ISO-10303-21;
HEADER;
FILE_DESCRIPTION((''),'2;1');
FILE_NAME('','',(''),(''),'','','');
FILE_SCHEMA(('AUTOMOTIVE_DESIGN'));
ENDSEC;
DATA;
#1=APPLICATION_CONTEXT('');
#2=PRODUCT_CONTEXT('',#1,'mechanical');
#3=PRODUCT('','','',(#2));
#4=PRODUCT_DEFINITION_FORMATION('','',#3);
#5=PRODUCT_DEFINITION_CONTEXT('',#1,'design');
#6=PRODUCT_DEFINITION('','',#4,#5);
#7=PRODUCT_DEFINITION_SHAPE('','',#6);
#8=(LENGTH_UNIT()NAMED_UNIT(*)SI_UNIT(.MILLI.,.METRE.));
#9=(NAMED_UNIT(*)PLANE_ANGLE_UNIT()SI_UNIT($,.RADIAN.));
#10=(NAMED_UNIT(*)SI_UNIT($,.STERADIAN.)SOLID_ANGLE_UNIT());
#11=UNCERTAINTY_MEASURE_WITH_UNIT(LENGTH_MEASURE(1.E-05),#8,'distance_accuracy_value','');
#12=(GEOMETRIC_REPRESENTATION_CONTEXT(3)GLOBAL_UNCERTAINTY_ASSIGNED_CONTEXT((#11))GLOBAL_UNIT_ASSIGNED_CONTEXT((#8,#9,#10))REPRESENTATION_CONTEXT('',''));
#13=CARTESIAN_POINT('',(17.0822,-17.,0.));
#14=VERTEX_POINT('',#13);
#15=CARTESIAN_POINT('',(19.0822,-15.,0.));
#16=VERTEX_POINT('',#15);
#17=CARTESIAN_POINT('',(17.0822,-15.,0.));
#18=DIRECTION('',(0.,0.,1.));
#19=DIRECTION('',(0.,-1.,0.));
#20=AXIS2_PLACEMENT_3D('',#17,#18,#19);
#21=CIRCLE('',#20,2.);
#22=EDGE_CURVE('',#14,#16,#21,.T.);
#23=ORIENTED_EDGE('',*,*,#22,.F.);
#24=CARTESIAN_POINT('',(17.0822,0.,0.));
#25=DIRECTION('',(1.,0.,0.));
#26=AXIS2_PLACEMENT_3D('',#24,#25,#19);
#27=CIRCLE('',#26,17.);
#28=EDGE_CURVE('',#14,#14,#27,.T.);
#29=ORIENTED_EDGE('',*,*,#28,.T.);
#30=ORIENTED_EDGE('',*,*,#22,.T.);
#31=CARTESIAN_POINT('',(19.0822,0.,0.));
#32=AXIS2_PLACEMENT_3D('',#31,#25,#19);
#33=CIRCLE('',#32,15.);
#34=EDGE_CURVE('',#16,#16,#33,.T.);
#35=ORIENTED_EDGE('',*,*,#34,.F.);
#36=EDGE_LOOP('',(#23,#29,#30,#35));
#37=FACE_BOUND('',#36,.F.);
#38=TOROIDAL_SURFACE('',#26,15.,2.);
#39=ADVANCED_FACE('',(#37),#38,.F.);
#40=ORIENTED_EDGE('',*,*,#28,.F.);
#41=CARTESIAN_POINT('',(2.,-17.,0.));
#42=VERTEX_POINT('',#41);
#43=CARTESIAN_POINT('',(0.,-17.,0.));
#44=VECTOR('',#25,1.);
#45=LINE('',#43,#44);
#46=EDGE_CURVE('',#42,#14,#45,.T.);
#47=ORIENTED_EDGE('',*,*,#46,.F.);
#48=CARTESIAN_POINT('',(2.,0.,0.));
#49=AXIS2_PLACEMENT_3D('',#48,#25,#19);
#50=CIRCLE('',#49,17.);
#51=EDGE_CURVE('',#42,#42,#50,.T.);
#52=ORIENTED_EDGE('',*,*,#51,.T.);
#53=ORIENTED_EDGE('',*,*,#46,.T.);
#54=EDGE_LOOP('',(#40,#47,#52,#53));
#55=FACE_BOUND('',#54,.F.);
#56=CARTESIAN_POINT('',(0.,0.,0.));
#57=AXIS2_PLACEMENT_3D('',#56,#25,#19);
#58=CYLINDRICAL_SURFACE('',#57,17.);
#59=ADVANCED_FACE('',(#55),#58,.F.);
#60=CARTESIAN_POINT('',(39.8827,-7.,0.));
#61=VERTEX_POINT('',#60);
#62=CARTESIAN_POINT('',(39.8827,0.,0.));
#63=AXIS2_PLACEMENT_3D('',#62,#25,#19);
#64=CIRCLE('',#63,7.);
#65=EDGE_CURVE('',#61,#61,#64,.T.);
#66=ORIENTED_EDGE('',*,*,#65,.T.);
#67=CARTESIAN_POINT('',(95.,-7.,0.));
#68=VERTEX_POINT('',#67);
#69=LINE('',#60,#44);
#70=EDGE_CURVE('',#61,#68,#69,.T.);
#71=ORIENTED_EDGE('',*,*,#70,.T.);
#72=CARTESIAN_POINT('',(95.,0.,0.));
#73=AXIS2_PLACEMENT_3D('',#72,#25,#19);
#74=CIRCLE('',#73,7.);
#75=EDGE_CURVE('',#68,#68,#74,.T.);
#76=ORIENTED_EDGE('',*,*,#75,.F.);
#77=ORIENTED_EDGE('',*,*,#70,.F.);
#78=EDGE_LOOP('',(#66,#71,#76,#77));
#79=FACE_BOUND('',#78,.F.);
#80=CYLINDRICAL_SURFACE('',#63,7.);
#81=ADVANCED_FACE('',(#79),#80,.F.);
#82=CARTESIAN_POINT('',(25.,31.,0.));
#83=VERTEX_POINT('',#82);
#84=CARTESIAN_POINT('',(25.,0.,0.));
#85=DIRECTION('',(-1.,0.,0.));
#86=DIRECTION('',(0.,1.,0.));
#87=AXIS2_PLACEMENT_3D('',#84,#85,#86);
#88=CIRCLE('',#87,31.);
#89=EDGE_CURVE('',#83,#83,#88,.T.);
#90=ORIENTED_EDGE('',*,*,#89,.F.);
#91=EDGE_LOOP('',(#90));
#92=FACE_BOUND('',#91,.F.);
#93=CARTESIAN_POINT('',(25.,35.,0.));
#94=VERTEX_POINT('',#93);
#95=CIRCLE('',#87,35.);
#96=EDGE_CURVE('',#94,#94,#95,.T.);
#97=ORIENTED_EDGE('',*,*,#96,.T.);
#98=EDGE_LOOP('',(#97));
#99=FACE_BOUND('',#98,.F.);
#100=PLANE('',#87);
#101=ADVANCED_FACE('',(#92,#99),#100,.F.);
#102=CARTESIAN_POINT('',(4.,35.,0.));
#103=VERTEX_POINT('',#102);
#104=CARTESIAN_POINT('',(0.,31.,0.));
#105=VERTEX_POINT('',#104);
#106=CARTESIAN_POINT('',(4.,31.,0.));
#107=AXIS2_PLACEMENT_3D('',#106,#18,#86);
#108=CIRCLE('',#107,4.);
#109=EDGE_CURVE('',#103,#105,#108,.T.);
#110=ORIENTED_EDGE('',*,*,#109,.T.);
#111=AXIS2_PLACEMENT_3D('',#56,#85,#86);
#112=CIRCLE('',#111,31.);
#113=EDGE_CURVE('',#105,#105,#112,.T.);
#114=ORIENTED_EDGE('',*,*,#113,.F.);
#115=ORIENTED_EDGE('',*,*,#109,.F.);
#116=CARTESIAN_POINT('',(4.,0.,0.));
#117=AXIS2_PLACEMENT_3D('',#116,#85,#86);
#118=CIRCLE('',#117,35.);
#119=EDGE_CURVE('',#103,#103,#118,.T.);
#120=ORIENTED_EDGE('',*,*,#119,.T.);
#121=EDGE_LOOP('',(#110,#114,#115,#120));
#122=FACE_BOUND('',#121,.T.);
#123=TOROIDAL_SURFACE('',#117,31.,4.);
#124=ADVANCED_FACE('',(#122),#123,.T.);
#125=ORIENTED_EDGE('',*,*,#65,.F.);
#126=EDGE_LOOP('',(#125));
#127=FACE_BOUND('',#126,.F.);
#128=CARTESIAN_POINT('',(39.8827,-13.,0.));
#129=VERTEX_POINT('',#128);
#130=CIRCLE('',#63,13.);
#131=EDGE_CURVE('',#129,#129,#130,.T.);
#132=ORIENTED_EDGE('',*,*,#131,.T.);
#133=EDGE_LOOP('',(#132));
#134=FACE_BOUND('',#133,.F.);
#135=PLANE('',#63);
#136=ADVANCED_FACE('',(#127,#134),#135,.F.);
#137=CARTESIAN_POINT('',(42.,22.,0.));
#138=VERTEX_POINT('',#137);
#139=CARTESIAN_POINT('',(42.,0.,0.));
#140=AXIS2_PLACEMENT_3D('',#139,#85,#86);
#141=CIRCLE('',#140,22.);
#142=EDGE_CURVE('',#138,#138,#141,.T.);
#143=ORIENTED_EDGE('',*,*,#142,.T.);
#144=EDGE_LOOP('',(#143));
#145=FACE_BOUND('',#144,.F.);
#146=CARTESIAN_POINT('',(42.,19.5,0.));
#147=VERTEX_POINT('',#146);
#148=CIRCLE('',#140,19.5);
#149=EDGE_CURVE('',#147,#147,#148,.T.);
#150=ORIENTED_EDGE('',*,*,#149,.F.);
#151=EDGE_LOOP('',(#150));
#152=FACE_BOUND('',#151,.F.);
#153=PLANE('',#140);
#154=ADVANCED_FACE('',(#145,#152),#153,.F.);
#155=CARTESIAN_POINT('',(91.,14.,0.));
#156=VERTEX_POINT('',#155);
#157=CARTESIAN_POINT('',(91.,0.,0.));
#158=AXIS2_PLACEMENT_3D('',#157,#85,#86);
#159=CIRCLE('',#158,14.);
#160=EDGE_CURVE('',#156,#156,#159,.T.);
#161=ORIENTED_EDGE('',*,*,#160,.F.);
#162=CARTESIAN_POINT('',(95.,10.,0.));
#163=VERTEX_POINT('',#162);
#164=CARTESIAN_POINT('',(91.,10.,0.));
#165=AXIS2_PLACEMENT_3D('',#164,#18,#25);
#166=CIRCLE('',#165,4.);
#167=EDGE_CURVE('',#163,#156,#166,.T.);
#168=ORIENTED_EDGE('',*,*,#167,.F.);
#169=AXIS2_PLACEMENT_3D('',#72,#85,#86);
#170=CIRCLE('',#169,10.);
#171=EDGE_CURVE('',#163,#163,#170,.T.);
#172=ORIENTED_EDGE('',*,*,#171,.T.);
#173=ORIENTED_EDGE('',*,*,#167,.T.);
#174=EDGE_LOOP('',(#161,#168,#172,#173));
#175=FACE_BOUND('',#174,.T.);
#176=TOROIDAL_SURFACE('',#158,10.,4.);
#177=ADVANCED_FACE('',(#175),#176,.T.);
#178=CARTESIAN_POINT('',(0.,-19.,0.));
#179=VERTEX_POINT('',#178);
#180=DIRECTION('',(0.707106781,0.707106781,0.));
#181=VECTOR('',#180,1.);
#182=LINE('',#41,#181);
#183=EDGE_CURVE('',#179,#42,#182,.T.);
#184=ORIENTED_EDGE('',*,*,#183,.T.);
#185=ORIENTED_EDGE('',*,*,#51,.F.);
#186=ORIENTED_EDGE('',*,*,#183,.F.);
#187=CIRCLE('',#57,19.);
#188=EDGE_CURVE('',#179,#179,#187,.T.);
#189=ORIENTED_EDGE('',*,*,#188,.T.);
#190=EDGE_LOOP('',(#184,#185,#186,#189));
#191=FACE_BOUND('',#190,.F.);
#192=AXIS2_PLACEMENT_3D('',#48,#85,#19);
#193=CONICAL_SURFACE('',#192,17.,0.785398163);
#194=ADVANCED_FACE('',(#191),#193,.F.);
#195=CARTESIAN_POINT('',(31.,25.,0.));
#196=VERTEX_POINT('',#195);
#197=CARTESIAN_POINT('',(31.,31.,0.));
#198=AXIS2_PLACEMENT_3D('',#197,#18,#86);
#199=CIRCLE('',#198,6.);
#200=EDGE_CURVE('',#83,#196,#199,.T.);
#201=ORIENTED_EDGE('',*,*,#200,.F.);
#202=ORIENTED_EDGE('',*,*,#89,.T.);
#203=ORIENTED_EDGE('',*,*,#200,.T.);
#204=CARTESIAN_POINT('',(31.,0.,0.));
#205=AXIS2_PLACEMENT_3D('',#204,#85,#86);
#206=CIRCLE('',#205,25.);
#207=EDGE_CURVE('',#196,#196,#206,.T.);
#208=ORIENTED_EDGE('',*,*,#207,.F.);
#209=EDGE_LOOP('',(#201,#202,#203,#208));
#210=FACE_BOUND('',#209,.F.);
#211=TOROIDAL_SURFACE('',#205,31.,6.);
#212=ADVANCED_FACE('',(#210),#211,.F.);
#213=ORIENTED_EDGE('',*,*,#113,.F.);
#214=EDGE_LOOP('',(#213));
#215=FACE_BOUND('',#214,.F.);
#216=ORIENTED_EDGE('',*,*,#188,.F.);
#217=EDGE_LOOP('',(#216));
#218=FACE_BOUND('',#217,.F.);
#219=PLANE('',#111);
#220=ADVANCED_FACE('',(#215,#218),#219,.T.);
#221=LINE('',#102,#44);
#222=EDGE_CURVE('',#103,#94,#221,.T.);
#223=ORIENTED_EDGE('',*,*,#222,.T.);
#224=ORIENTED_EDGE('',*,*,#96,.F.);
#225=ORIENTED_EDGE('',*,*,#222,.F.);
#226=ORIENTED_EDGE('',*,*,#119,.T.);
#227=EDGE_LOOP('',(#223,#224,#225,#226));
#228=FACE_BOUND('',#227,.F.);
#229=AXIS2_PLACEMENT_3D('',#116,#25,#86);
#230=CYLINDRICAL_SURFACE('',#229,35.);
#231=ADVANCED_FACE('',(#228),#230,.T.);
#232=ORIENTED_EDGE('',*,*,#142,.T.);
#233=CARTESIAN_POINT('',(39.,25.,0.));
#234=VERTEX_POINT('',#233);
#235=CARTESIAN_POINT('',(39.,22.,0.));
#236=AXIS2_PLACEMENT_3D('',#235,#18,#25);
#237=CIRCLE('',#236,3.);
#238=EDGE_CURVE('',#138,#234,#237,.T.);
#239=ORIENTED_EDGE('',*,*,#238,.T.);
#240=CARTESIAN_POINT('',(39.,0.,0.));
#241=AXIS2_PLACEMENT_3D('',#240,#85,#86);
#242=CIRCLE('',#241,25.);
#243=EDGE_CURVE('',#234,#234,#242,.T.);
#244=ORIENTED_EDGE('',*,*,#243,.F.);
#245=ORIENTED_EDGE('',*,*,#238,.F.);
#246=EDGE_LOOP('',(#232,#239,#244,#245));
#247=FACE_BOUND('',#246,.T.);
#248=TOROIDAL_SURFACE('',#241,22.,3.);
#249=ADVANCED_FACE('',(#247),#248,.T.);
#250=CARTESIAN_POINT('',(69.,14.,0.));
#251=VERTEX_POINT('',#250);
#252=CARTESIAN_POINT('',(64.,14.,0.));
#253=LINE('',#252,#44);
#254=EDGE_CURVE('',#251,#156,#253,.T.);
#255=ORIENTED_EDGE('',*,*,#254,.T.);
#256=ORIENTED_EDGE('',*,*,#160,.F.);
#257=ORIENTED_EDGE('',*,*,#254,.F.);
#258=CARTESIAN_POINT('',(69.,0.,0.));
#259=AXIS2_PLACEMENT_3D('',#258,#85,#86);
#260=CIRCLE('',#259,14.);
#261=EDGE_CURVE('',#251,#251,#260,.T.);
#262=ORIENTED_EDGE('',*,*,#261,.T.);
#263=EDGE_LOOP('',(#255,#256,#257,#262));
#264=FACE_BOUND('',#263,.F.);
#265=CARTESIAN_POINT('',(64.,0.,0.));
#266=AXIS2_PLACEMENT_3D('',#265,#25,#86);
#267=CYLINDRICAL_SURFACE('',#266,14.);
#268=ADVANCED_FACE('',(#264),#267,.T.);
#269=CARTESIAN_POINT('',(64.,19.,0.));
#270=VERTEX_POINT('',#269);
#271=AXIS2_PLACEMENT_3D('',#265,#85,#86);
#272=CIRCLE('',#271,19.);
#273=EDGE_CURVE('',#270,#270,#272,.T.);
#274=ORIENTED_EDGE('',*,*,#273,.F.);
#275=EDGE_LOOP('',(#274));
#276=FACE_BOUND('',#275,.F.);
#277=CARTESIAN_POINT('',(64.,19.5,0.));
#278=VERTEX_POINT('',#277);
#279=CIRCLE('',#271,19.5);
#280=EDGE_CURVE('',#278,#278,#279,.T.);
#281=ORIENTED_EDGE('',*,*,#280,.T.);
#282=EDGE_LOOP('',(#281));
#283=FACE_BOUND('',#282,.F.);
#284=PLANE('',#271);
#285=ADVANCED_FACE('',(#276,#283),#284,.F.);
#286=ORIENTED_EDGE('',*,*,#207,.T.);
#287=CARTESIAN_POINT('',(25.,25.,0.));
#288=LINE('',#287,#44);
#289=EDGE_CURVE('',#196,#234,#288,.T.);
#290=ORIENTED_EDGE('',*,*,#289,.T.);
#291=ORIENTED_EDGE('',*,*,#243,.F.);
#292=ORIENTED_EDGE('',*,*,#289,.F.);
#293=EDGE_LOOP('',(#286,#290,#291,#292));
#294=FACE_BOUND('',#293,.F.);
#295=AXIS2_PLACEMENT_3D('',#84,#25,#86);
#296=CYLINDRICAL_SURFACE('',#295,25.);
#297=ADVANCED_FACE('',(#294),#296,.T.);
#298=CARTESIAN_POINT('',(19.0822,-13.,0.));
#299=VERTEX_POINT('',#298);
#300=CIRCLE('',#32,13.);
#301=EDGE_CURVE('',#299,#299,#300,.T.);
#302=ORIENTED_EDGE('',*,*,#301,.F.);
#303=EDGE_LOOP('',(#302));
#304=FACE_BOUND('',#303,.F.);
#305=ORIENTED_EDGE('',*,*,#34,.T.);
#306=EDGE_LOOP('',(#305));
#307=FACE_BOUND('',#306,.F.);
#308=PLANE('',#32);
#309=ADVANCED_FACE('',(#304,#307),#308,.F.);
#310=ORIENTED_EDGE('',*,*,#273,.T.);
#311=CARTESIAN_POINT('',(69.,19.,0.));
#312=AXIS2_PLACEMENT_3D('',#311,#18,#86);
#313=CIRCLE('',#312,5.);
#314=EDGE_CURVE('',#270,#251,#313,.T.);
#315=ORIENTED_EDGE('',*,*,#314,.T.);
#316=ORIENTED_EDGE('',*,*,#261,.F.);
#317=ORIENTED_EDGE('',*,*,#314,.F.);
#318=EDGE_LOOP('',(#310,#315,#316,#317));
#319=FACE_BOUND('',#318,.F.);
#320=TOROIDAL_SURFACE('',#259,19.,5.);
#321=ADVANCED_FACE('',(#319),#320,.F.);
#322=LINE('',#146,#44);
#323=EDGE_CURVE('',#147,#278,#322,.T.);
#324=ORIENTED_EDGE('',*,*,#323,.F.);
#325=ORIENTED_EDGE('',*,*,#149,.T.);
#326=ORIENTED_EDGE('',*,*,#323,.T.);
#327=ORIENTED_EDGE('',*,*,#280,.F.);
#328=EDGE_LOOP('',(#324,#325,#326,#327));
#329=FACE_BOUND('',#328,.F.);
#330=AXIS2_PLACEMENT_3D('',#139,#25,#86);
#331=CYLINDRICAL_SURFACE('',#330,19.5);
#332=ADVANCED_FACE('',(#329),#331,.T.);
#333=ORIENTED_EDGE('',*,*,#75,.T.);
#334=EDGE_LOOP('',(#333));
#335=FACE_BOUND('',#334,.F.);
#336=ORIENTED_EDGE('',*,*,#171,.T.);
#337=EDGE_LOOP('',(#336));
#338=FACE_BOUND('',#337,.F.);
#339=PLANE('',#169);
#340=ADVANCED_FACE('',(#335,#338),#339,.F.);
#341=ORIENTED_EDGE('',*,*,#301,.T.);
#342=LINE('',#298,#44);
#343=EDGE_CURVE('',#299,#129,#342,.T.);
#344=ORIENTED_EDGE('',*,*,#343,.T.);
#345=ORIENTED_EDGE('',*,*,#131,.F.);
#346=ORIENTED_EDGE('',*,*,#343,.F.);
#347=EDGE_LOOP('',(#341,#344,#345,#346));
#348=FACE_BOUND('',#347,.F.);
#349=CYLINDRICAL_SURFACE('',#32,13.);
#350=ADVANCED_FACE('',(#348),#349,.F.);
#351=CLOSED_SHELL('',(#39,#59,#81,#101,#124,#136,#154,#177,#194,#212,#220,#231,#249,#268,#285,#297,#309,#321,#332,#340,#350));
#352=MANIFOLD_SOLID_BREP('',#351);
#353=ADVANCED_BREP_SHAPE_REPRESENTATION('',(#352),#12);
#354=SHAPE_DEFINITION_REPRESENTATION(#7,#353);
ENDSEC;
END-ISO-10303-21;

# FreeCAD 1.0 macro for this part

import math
import FreeCAD as App
import Part
import Sketcher

V = App.Vector
Q = App.Units.Quantity


def edges_at(feature, points):
    """Names of the edges that pass closest to the given points."""
    edges = feature.Shape.Edges
    near = lambda p: min(range(len(edges)), key=lambda i: edges[i].distToShape(Part.Vertex(*p))[0])
    return sorted({f"Edge{near(p) + 1}" for p in points})

doc = App.newDocument("Part")
body = doc.addObject("PartDesign::Body", "Body")

sketch1 = body.newObject("Sketcher::SketchObject", "Sketch")
sketch1.AttachmentSupport = (doc.getObject("XY_Plane"), [""])
sketch1.MapMode = "FlatFace"
sketch1.addGeometry([
    Part.LineSegment(V(0, 31, 0), V(0, 0, 0)),
    Part.LineSegment(V(0, 0, 0), V(95, 0, 0)),
    Part.LineSegment(V(95, 0, 0), V(95, 10, 0)),
    Part.ArcOfCircle(Part.Circle(V(91, 10, 0), V(0, 0, 1), 4), math.radians(0), math.radians(90)),
    Part.LineSegment(V(91, 14, 0), V(64, 14, 0)),
    Part.LineSegment(V(64, 14, 0), V(64, 19.5, 0)),
    Part.LineSegment(V(64, 19.5, 0), V(42, 19.5, 0)),
    Part.LineSegment(V(42, 19.5, 0), V(42, 22, 0)),
    Part.ArcOfCircle(Part.Circle(V(39, 22, 0), V(0, 0, 1), 3), math.radians(0), math.radians(90)),
    Part.LineSegment(V(39, 25, 0), V(25, 25, 0)),
    Part.LineSegment(V(25, 25, 0), V(25, 35, 0)),
    Part.LineSegment(V(25, 35, 0), V(4, 35, 0)),
    Part.ArcOfCircle(Part.Circle(V(4, 31, 0), V(0, 0, 1), 4), math.radians(90), math.radians(180)),
], False)
sketch1.addConstraint([
    Sketcher.Constraint("Coincident", 0, 2, 1, 1),
    Sketcher.Constraint("Coincident", 1, 2, 2, 1),
    Sketcher.Constraint("Tangent", 2, 2, 3, 1),
    Sketcher.Constraint("Tangent", 3, 2, 4, 1),
    Sketcher.Constraint("Coincident", 4, 2, 5, 1),
    Sketcher.Constraint("Coincident", 5, 2, 6, 1),
    Sketcher.Constraint("Coincident", 6, 2, 7, 1),
    Sketcher.Constraint("Tangent", 7, 2, 8, 1),
    Sketcher.Constraint("Tangent", 8, 2, 9, 1),
    Sketcher.Constraint("Coincident", 9, 2, 10, 1),
    Sketcher.Constraint("Coincident", 10, 2, 11, 1),
    Sketcher.Constraint("Tangent", 11, 2, 12, 1),
    Sketcher.Constraint("Tangent", 12, 2, 0, 1),
    Sketcher.Constraint("Vertical", 0),
    Sketcher.Constraint("Horizontal", 1),
    Sketcher.Constraint("Vertical", 2),
    Sketcher.Constraint("Horizontal", 4),
    Sketcher.Constraint("Vertical", 5),
    Sketcher.Constraint("Horizontal", 6),
    Sketcher.Constraint("Vertical", 7),
    Sketcher.Constraint("Horizontal", 9),
    Sketcher.Constraint("Vertical", 10),
    Sketcher.Constraint("Horizontal", 11),
    Sketcher.Constraint("Coincident", 0, 2, -1, 1),
    Sketcher.Constraint("Equal", 3, 12),
    Sketcher.Constraint("Equal", 2, 10),
    Sketcher.Constraint("Radius", 3, Q("4 mm")),
    Sketcher.Constraint("Radius", 8, Q("3 mm")),
    Sketcher.Constraint("DistanceX", 1, 1, 1, 2, Q("95 mm")),
    Sketcher.Constraint("DistanceX", 9, 2, 9, 1, Q("14 mm")),
    Sketcher.Constraint("DistanceY", 0, 2, 0, 1, Q("31 mm")),
    Sketcher.Constraint("DistanceX", -1, 1, 8, 3, Q("39 mm")),
    Sketcher.Constraint("DistanceY", -1, 1, 3, 2, Q("14 mm")),
    Sketcher.Constraint("DistanceX", 4, 2, 2, 2, Q("31 mm")),
    Sketcher.Constraint("DistanceY", 5, 1, 5, 2, Q("5.5 mm")),
])
revolution = body.newObject("PartDesign::Revolution", "Revolution")
revolution.Profile = sketch1
revolution.ReferenceAxis = (sketch1, ["H_Axis"])
revolution.Angle = 360

sketch2 = body.newObject("Sketcher::SketchObject", "Sketch001")
sketch2.AttachmentSupport = (doc.getObject("XY_Plane"), [""])
sketch2.MapMode = "FlatFace"
sketch2.addGeometry([
    Part.LineSegment(V(95, 0, 0), V(0, 0, 0)),
    Part.LineSegment(V(0, 0, 0), V(0, -17, 0)),
    Part.LineSegment(V(0, -17, 0), V(17.1, -17, 0)),
    Part.ArcOfCircle(Part.Circle(V(17.1, -15, 0), V(0, 0, 1), 2), math.radians(-90), math.radians(0)),
    Part.LineSegment(V(19.1, -15, 0), V(19.1, -13, 0)),
    Part.LineSegment(V(19.1, -13, 0), V(39.9, -13, 0)),
    Part.LineSegment(V(39.9, -13, 0), V(39.9, -7, 0)),
    Part.LineSegment(V(39.9, -7, 0), V(95, -7, 0)),
    Part.LineSegment(V(95, -7, 0), V(95, 0, 0)),
], False)
sketch2.addConstraint([
    Sketcher.Constraint("Coincident", 0, 2, 1, 1),
    Sketcher.Constraint("Coincident", 1, 2, 2, 1),
    Sketcher.Constraint("Tangent", 2, 2, 3, 1),
    Sketcher.Constraint("Tangent", 3, 2, 4, 1),
    Sketcher.Constraint("Coincident", 4, 2, 5, 1),
    Sketcher.Constraint("Coincident", 5, 2, 6, 1),
    Sketcher.Constraint("Coincident", 6, 2, 7, 1),
    Sketcher.Constraint("Coincident", 7, 2, 8, 1),
    Sketcher.Constraint("Coincident", 8, 2, 0, 1),
    Sketcher.Constraint("Horizontal", 0),
    Sketcher.Constraint("Vertical", 1),
    Sketcher.Constraint("Horizontal", 2),
    Sketcher.Constraint("Vertical", 4),
    Sketcher.Constraint("Horizontal", 5),
    Sketcher.Constraint("Vertical", 6),
    Sketcher.Constraint("Horizontal", 7),
    Sketcher.Constraint("Vertical", 8),
    Sketcher.Constraint("Coincident", 0, 2, -1, 1),
    Sketcher.Constraint("Radius", 3, Q("2 mm")),
    Sketcher.Constraint("DistanceX", 0, 2, 0, 1, Q("95 mm")),
    Sketcher.Constraint("DistanceY", 4, 1, 4, 2, Q("2 mm")),
    Sketcher.Constraint("DistanceY", 1, 2, 1, 1, Q("17 mm")),
    Sketcher.Constraint("DistanceY", 6, 1, 6, 2, Q("6 mm")),
    Sketcher.Constraint("DistanceX", 2, 1, 2, 2, Q("17.0822 mm")),
    Sketcher.Constraint("DistanceX", 5, 1, 5, 2, Q("20.8005 mm")),
])
groove = body.newObject("PartDesign::Groove", "Groove")
groove.Profile = sketch2
groove.ReferenceAxis = (sketch2, ["H_Axis"])
groove.Angle = 360
doc.recompute()

fillet = body.newObject("PartDesign::Fillet", "Fillet")
fillet.Base = (groove, edges_at(groove, [(25, -25, 0)]))
fillet.Radius = 6
doc.recompute()

fillet2 = body.newObject("PartDesign::Fillet", "Fillet001")
fillet2.Base = (fillet, edges_at(fillet, [(64, -14, 0)]))
fillet2.Radius = 5
doc.recompute()

chamfer = body.newObject("PartDesign::Chamfer", "Chamfer")
chamfer.Base = (fillet2, edges_at(fillet2, [(0, 17, 0)]))
chamfer.Size = 2

doc.recompute()
